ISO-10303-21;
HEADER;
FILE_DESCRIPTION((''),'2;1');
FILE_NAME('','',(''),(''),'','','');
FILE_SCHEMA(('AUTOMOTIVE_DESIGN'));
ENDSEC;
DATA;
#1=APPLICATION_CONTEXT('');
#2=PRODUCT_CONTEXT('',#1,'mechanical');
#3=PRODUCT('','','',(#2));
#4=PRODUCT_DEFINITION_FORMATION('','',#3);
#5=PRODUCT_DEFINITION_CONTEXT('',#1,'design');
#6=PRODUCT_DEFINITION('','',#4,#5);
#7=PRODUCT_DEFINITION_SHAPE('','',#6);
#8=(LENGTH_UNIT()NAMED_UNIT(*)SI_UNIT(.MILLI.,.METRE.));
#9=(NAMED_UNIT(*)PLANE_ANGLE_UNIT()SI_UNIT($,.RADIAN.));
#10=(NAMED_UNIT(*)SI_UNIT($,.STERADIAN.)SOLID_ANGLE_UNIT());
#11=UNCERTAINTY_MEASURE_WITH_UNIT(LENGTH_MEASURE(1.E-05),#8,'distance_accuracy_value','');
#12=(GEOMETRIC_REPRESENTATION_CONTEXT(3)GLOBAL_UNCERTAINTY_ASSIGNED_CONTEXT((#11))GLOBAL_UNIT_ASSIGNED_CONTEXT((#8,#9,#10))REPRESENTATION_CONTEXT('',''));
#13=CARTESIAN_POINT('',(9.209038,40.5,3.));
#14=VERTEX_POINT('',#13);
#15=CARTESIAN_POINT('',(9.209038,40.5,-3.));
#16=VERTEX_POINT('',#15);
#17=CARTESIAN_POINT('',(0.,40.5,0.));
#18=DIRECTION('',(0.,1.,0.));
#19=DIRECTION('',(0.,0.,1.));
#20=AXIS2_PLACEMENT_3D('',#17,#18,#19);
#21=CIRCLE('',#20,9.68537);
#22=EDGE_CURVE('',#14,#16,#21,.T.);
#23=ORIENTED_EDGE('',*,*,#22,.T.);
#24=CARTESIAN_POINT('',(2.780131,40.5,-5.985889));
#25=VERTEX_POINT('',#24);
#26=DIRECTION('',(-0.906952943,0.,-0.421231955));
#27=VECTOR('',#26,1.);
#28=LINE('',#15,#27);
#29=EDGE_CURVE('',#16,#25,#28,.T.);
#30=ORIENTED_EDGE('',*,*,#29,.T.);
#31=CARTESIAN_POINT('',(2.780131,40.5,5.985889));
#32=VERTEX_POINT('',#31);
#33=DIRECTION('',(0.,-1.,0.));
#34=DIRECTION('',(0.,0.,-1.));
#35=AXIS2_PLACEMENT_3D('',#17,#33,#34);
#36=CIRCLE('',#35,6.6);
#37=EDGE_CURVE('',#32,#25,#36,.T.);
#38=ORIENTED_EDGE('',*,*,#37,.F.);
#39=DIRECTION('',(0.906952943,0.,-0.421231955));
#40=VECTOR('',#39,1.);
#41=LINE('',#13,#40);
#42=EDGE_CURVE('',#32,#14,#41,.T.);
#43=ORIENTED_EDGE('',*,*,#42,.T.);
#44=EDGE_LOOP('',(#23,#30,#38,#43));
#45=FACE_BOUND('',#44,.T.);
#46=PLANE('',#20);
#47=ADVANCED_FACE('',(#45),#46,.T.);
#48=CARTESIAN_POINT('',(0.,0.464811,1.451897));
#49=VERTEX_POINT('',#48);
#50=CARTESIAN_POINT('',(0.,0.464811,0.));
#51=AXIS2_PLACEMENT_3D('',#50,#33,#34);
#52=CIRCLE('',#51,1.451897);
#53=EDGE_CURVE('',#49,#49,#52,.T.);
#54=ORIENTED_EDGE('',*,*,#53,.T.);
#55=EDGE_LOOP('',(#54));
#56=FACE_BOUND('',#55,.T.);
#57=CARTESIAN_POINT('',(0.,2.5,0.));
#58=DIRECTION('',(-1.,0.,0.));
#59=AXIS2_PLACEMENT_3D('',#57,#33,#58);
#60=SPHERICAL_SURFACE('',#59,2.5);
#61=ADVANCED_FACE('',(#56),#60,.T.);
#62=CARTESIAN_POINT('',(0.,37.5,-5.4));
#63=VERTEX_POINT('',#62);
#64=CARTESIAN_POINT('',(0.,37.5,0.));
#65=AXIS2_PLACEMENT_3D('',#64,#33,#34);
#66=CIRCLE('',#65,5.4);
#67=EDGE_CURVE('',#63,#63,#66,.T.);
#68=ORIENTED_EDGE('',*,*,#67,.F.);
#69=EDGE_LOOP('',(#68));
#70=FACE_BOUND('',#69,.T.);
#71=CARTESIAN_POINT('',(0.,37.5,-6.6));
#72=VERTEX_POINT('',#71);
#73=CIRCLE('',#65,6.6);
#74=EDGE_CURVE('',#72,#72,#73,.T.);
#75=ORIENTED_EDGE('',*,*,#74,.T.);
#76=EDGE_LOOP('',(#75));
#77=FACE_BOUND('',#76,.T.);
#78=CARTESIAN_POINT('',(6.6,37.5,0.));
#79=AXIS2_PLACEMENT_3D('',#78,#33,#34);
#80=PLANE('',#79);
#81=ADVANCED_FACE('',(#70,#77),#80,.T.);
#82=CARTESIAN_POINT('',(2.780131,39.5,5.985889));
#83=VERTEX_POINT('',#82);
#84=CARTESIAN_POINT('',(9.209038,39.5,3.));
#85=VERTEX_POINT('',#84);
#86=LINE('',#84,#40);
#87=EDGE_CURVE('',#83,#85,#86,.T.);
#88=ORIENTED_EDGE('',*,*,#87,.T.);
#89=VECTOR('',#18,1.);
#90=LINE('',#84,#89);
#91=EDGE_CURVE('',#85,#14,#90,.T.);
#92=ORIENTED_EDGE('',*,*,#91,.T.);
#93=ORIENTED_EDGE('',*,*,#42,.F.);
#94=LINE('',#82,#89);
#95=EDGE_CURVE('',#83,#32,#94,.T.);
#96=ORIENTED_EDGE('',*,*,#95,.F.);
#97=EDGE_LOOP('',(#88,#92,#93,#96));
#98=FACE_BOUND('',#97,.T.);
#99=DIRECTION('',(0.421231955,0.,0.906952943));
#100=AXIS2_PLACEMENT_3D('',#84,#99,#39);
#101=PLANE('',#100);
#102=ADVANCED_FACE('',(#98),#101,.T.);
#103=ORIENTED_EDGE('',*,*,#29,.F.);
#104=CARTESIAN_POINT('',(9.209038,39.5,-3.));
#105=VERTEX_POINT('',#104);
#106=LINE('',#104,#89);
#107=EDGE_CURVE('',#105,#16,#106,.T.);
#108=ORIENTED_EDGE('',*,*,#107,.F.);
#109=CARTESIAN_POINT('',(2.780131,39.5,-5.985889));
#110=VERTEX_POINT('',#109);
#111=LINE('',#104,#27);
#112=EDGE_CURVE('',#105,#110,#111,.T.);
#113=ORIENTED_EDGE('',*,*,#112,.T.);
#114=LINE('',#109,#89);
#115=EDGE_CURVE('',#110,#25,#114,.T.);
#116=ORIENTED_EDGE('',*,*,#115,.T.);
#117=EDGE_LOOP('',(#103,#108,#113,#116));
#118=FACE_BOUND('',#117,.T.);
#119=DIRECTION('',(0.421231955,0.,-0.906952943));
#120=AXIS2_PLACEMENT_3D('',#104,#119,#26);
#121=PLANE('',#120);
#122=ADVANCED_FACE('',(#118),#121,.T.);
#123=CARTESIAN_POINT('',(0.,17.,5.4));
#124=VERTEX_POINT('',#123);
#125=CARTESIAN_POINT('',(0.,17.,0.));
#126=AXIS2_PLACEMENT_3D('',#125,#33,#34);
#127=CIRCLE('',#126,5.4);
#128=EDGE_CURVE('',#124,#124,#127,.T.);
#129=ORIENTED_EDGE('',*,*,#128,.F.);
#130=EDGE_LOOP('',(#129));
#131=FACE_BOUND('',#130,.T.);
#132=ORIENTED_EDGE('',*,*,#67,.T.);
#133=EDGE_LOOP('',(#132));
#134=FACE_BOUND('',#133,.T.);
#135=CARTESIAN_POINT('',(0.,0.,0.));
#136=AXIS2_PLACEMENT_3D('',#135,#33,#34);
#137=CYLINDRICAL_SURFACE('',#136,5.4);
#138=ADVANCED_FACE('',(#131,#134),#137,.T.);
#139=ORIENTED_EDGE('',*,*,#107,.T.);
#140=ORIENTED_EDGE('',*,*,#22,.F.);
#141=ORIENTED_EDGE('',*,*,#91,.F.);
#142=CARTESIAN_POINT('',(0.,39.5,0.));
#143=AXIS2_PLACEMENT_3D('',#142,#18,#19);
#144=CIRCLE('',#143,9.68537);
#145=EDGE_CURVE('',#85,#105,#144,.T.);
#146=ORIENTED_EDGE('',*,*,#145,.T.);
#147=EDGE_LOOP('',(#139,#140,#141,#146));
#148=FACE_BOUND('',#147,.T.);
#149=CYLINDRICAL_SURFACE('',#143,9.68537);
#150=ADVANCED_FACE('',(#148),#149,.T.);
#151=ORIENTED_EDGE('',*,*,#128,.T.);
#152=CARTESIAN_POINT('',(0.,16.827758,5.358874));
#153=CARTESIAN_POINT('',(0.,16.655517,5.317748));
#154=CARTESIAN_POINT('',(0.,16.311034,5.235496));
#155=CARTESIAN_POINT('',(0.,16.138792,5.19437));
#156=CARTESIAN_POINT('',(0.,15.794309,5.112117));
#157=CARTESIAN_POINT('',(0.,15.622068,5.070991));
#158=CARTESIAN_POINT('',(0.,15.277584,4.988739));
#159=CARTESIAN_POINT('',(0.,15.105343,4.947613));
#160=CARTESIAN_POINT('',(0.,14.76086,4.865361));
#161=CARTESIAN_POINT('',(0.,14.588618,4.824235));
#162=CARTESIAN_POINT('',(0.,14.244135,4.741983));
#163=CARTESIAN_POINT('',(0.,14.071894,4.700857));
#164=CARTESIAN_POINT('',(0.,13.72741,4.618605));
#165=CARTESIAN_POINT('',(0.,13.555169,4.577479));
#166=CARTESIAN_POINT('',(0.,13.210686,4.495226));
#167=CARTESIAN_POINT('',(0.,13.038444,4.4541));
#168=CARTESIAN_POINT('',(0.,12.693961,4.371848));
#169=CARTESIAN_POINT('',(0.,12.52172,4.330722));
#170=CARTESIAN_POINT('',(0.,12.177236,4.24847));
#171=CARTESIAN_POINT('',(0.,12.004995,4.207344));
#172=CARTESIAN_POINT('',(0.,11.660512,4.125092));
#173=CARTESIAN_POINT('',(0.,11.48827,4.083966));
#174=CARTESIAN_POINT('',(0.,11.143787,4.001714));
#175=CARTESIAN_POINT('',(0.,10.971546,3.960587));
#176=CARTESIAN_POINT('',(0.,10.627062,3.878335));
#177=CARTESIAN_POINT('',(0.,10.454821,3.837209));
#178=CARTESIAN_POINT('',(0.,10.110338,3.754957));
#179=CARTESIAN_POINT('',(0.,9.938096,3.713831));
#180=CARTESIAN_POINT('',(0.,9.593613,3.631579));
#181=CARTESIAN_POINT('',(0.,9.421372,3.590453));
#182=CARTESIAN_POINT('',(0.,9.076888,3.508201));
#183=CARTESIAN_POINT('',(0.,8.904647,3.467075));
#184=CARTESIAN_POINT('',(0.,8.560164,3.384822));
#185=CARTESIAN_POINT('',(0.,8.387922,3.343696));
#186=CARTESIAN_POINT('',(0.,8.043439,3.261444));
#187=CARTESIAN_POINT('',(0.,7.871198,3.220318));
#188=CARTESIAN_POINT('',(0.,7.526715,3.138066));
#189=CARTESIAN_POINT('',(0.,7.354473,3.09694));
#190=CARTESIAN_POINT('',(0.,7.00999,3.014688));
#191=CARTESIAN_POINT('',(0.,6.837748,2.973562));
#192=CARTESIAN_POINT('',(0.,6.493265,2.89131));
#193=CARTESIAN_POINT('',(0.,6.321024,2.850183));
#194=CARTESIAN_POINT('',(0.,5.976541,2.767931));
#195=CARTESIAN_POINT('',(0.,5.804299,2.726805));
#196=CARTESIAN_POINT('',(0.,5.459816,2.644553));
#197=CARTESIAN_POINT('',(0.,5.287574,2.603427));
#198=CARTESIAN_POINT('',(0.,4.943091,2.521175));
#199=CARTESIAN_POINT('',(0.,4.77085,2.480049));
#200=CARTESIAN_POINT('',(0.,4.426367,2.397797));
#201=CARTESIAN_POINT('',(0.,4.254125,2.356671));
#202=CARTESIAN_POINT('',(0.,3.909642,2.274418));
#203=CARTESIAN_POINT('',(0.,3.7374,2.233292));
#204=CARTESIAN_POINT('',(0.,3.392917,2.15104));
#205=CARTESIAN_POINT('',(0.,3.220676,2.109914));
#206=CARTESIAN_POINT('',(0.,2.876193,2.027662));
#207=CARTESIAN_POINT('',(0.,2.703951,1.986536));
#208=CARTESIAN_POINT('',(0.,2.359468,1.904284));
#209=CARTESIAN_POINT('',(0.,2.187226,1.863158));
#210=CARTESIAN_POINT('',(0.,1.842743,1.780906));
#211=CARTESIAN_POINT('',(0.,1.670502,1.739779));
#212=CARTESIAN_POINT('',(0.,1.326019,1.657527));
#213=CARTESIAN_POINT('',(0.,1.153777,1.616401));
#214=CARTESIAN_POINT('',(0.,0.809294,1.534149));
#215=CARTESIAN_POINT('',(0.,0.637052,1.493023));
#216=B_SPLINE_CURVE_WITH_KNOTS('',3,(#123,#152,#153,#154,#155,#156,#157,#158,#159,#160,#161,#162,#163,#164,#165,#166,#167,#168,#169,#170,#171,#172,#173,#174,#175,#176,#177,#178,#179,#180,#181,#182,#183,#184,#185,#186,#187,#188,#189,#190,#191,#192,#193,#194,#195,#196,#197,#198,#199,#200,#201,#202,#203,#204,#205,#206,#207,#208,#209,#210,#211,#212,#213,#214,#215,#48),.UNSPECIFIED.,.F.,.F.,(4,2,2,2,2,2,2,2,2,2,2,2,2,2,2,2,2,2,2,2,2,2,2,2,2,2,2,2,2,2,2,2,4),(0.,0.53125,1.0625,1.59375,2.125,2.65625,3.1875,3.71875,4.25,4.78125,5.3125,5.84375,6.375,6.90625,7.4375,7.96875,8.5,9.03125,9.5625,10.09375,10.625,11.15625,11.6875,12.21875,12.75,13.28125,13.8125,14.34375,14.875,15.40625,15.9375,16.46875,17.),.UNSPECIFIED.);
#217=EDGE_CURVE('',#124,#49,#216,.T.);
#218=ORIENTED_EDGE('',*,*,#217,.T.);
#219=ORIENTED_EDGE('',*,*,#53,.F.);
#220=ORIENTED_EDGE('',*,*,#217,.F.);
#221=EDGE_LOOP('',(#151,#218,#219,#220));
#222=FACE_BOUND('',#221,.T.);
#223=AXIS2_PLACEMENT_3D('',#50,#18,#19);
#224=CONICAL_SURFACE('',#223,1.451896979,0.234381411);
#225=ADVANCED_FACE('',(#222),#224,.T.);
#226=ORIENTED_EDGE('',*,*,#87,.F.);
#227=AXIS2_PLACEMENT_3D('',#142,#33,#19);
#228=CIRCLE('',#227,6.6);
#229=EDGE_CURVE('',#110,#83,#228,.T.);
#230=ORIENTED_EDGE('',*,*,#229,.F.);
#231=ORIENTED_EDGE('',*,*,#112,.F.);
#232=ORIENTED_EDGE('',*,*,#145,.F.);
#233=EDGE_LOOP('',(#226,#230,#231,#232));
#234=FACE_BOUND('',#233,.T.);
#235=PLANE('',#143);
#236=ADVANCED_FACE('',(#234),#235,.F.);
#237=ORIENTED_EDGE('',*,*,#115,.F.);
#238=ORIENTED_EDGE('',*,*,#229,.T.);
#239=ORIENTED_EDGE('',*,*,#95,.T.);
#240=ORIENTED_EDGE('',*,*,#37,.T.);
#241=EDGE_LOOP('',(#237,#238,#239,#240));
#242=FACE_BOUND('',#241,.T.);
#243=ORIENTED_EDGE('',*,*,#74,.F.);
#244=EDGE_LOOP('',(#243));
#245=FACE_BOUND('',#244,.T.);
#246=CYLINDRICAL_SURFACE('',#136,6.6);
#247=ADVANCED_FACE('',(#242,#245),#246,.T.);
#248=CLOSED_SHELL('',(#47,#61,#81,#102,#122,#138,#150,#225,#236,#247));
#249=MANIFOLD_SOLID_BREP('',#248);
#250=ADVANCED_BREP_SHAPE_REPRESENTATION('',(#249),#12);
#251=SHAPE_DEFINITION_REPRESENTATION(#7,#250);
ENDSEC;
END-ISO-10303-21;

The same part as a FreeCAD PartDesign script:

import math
import FreeCAD as App
import Part
import Sketcher

doc = App.newDocument("Part")
body = doc.addObject("PartDesign::Body", "Body")

sketch1 = body.newObject("Sketcher::SketchObject", "Sketch")
sketch1.AttachmentSupport = (doc.getObject("XY_Plane"), [""])
sketch1.MapMode = "FlatFace"
sketch1.addGeometry([
    Part.LineSegment(App.Vector(0, 40.5, 0), App.Vector(0, 0, 0)),
    Part.ArcOfCircle(Part.Circle(App.Vector(0, 2.5, 0), App.Vector(0, 0, 1), 2.5), math.radians(-90), math.radians(-54)),
    Part.LineSegment(App.Vector(1.5, 0.5, 0), App.Vector(5.4, 17, 0)),
    Part.LineSegment(App.Vector(5.4, 17, 0), App.Vector(5.4, 37.5, 0)),
    Part.LineSegment(App.Vector(5.4, 37.5, 0), App.Vector(6.6, 37.5, 0)),
    Part.LineSegment(App.Vector(6.6, 37.5, 0), App.Vector(6.6, 40.5, 0)),
    Part.LineSegment(App.Vector(6.6, 40.5, 0), App.Vector(0, 40.5, 0)),
], False)
sketch1.addConstraint([
    Sketcher.Constraint("Coincident", 0, 2, 1, 1),
    Sketcher.Constraint("Coincident", 1, 2, 2, 1),
    Sketcher.Constraint("Coincident", 2, 2, 3, 1),
    Sketcher.Constraint("Coincident", 3, 2, 4, 1),
    Sketcher.Constraint("Coincident", 4, 2, 5, 1),
    Sketcher.Constraint("Coincident", 5, 2, 6, 1),
    Sketcher.Constraint("Coincident", 6, 2, 0, 1),
    Sketcher.Constraint("Vertical", 0),
    Sketcher.Constraint("Vertical", 3),
    Sketcher.Constraint("Horizontal", 4),
    Sketcher.Constraint("Vertical", 5),
    Sketcher.Constraint("Horizontal", 6),
    Sketcher.Constraint("Coincident", 0, 2, -1, 1),
    Sketcher.Constraint("PointOnObject", 1, 3, -2),
    Sketcher.Constraint("Radius", 1, 2.5),
    Sketcher.Constraint("DistanceY", 5, 1, 5, 2, 3.0),
    Sketcher.Constraint("Distance", 2, 17.0),
    Sketcher.Constraint("DistanceX", 4, 1, 4, 2, 1.2),
    Sketcher.Constraint("DistanceX", 6, 2, 6, 1, 6.6),
    Sketcher.Constraint("DistanceY", 0, 2, 0, 1, 40.5),
    Sketcher.Constraint("DistanceY", 3, 1, 3, 2, 20.5),
])
revolution = body.newObject("PartDesign::Revolution", "Revolution")
revolution.Profile = sketch1
revolution.ReferenceAxis = (sketch1, ["V_Axis"])
revolution.Angle = 360

sketch2 = body.newObject("Sketcher::SketchObject", "Sketch001")
sketch2.AttachmentSupport = (doc.getObject("XZ_Plane"), [""])
sketch2.MapMode = "FlatFace"
sketch2.AttachmentOffset = App.Placement(App.Vector(0, 0, -40.5), App.Rotation())
sketch2.addGeometry([
    Part.LineSegment(App.Vector(9, -3, 0), App.Vector(3, -6, 0)),
    Part.ArcOfCircle(Part.Circle(App.Vector(0, 0, 0), App.Vector(0, 0, 1), 7), math.radians(-65), math.radians(65)),
    Part.LineSegment(App.Vector(3, 6, 0), App.Vector(9, 3, 0)),
    Part.ArcOfCircle(Part.Circle(App.Vector(0, 0, 0), App.Vector(0, 0, 1), 10), math.radians(-18), math.radians(18)),
], False)
sketch2.addConstraint([
    Sketcher.Constraint("Tangent", 0, 2, 1, 1),
    Sketcher.Constraint("Tangent", 1, 2, 2, 1),
    Sketcher.Constraint("Coincident", 2, 2, 3, 2),
    Sketcher.Constraint("Coincident", 3, 1, 0, 1),
    Sketcher.Constraint("Coincident", 1, 3, -1, 1),
    Sketcher.Constraint("Coincident", 3, 3, -1, 1),
    Sketcher.Constraint("Vertical", 0, 2, 1, 2),
    Sketcher.Constraint("Radius", 1, 6.6),
    Sketcher.Constraint("DistanceY", -1, 1, 2, 2, 3.0),
    Sketcher.Constraint("Radius", 3, 9.68537),
])
pad1 = body.newObject("PartDesign::Pad", "Pad")
pad1.Profile = sketch2
pad1.Length = 1

doc.recompute()
